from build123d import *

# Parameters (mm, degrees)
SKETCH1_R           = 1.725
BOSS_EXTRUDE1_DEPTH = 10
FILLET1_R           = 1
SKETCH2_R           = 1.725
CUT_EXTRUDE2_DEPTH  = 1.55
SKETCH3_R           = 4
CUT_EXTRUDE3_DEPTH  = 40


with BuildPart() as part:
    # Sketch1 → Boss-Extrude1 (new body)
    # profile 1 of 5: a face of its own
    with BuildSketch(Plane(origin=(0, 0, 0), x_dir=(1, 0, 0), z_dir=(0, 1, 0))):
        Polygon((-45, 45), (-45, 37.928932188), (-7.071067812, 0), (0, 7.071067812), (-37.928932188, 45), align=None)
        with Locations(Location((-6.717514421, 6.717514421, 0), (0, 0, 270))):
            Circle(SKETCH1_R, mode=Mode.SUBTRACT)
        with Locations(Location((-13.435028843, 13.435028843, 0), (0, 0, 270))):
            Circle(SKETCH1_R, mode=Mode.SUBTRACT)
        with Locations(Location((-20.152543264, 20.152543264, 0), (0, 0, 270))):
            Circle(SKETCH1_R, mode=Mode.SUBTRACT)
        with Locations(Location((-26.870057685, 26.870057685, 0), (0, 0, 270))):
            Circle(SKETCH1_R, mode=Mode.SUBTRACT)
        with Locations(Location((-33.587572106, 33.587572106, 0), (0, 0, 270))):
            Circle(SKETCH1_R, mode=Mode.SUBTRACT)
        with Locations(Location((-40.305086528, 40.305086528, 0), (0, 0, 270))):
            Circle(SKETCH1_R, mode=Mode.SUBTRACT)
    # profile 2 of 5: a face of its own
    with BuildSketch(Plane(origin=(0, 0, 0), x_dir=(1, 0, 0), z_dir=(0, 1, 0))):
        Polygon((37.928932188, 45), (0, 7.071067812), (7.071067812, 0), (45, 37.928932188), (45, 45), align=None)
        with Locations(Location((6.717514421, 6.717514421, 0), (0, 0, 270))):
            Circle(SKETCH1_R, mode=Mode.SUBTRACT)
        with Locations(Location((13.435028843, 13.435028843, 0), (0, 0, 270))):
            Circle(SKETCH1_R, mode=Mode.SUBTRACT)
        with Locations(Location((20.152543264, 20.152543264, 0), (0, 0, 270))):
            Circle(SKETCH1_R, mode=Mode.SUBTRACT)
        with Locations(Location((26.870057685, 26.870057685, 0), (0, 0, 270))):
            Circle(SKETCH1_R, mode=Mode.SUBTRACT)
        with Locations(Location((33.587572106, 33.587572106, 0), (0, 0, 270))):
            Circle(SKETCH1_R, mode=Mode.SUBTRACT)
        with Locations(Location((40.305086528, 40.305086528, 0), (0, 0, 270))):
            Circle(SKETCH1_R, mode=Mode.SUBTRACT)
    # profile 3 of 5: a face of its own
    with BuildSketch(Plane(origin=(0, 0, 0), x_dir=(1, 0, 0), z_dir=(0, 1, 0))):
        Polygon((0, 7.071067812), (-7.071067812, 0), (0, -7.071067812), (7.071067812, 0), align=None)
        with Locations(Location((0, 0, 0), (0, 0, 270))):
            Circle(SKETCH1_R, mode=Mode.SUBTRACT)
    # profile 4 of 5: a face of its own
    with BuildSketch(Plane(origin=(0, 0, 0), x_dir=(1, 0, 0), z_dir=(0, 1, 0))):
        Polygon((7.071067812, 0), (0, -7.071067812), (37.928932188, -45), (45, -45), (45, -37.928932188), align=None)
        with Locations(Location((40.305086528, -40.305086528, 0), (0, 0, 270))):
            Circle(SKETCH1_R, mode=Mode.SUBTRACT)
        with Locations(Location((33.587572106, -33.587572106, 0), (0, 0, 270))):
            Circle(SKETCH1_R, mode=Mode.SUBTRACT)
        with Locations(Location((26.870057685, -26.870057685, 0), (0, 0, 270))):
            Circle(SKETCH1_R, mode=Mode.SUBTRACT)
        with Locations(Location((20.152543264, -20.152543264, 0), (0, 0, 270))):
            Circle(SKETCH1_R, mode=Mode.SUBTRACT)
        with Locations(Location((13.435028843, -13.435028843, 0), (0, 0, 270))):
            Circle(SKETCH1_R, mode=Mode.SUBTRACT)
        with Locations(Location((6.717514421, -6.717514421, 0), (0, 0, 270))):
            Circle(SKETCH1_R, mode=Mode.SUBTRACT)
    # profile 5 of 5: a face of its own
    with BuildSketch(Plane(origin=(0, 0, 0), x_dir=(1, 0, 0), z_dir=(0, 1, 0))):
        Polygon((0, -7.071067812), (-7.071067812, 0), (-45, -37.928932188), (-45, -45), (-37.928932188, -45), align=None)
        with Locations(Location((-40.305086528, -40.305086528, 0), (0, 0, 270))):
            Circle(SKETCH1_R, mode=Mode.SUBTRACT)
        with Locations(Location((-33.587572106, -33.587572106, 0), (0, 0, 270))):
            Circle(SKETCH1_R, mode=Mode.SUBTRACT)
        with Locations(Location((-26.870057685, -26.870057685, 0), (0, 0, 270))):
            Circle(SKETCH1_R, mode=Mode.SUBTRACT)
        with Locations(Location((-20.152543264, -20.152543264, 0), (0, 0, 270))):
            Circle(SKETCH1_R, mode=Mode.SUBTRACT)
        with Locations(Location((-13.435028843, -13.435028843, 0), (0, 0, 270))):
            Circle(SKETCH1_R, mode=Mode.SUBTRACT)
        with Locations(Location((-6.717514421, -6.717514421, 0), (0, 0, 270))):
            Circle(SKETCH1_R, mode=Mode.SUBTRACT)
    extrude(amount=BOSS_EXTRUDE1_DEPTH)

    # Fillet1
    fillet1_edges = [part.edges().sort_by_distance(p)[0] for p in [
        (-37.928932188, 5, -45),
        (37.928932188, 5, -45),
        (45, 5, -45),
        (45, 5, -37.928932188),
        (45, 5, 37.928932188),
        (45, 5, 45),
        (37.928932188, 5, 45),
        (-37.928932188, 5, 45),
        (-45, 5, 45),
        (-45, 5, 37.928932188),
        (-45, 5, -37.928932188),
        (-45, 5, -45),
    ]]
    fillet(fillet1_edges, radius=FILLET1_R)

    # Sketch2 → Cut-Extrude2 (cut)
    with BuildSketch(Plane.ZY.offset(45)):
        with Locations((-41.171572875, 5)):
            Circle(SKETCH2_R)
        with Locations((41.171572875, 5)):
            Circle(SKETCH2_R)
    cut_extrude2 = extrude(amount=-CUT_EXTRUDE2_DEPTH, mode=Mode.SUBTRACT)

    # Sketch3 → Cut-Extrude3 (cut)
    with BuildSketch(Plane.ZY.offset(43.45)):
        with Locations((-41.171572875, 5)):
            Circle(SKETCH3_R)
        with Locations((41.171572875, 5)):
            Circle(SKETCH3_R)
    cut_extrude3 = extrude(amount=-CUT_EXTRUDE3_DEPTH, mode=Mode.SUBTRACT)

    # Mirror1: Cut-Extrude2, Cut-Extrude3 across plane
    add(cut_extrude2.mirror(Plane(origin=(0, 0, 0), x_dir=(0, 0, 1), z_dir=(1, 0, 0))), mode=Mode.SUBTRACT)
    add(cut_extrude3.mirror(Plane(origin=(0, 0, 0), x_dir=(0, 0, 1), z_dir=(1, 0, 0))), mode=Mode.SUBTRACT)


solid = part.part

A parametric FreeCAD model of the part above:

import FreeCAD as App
import Part
import Sketcher
from FreeCAD import Vector
Q = App.Units.Quantity


def edges_at(feature, points):
    """Names of the edges that pass closest to the given points."""
    edges = feature.Shape.Edges
    near = lambda p: min(range(len(edges)), key=lambda i: edges[i].distToShape(Part.Vertex(*p))[0])
    return sorted({f"Edge{near(p) + 1}" for p in points})

doc = App.newDocument("Part")
body = doc.addObject("PartDesign::Body", "Body")

# Sketch on XZ plane
sketch1 = doc.addObject("Sketcher::SketchObject", "Sketch")
body.addObject(sketch1)
sketch1.AttachmentSupport = (doc.XZ_Plane, [""])
sketch1.MapMode = "FlatFace"
sketch1.addGeometry(Part.LineSegment(Vector(-45, -45, 0), Vector(-45, -37.9, 0)), False)
sketch1.addGeometry(Part.LineSegment(Vector(-45, -37.9, 0), Vector(-7.1, 0, 0)), False)
sketch1.addGeometry(Part.LineSegment(Vector(-7.1, 0, 0), Vector(-45, 37.9, 0)), False)
sketch1.addGeometry(Part.LineSegment(Vector(-45, 37.9, 0), Vector(-45, 45, 0)), False)
sketch1.addGeometry(Part.LineSegment(Vector(-45, 45, 0), Vector(-37.9, 45, 0)), False)
sketch1.addGeometry(Part.LineSegment(Vector(-37.9, 45, 0), Vector(0, 7.1, 0)), False)
sketch1.addGeometry(Part.LineSegment(Vector(0, 7.1, 0), Vector(37.9, 45, 0)), False)
sketch1.addGeometry(Part.LineSegment(Vector(37.9, 45, 0), Vector(45, 45, 0)), False)
sketch1.addGeometry(Part.LineSegment(Vector(45, 45, 0), Vector(45, 37.9, 0)), False)
sketch1.addGeometry(Part.LineSegment(Vector(45, 37.9, 0), Vector(7.1, 0, 0)), False)
sketch1.addGeometry(Part.LineSegment(Vector(7.1, 0, 0), Vector(45, -37.9, 0)), False)
sketch1.addGeometry(Part.LineSegment(Vector(45, -37.9, 0), Vector(45, -45, 0)), False)
sketch1.addGeometry(Part.LineSegment(Vector(45, -45, 0), Vector(37.9, -45, 0)), False)
sketch1.addGeometry(Part.LineSegment(Vector(37.9, -45, 0), Vector(0, -7.1, 0)), False)
sketch1.addGeometry(Part.LineSegment(Vector(0, -7.1, 0), Vector(-37.9, -45, 0)), False)
sketch1.addGeometry(Part.LineSegment(Vector(-37.9, -45, 0), Vector(-45, -45, 0)), False)
sketch1.addGeometry(Part.Circle(Vector(-6.7, -6.7, 0), Vector(0, 0, 1), 1.7), False)
sketch1.addGeometry(Part.Circle(Vector(-13.4, -13.4, 0), Vector(0, 0, 1), 1.7), False)
sketch1.addGeometry(Part.Circle(Vector(-20.2, -20.2, 0), Vector(0, 0, 1), 1.7), False)
sketch1.addGeometry(Part.Circle(Vector(-26.9, -26.9, 0), Vector(0, 0, 1), 1.7), False)
sketch1.addGeometry(Part.Circle(Vector(-33.6, -33.6, 0), Vector(0, 0, 1), 1.7), False)
sketch1.addGeometry(Part.Circle(Vector(-40.3, -40.3, 0), Vector(0, 0, 1), 1.7), False)
sketch1.addGeometry(Part.Circle(Vector(0, 0, 0), Vector(0, 0, 1), 1.7), False)
sketch1.addGeometry(Part.Circle(Vector(40.3, -40.3, 0), Vector(0, 0, 1), 1.7), False)
sketch1.addGeometry(Part.Circle(Vector(6.7, -6.7, 0), Vector(0, 0, 1), 1.7), False)
sketch1.addGeometry(Part.Circle(Vector(13.4, -13.4, 0), Vector(0, 0, 1), 1.7), False)
sketch1.addGeometry(Part.Circle(Vector(20.2, -20.2, 0), Vector(0, 0, 1), 1.7), False)
sketch1.addGeometry(Part.Circle(Vector(26.9, -26.9, 0), Vector(0, 0, 1), 1.7), False)
sketch1.addGeometry(Part.Circle(Vector(33.6, -33.6, 0), Vector(0, 0, 1), 1.7), False)
sketch1.addGeometry(Part.Circle(Vector(-6.7, 6.7, 0), Vector(0, 0, 1), 1.7), False)
sketch1.addGeometry(Part.Circle(Vector(-40.3, 40.3, 0), Vector(0, 0, 1), 1.7), False)
sketch1.addGeometry(Part.Circle(Vector(-33.6, 33.6, 0), Vector(0, 0, 1), 1.7), False)
sketch1.addGeometry(Part.Circle(Vector(-26.9, 26.9, 0), Vector(0, 0, 1), 1.7), False)
sketch1.addGeometry(Part.Circle(Vector(-20.2, 20.2, 0), Vector(0, 0, 1), 1.7), False)
sketch1.addGeometry(Part.Circle(Vector(-13.4, 13.4, 0), Vector(0, 0, 1), 1.7), False)
sketch1.addGeometry(Part.Circle(Vector(6.7, 6.7, 0), Vector(0, 0, 1), 1.7), False)
sketch1.addGeometry(Part.Circle(Vector(40.3, 40.3, 0), Vector(0, 0, 1), 1.7), False)
sketch1.addGeometry(Part.Circle(Vector(33.6, 33.6, 0), Vector(0, 0, 1), 1.7), False)
sketch1.addGeometry(Part.Circle(Vector(26.9, 26.9, 0), Vector(0, 0, 1), 1.7), False)
sketch1.addGeometry(Part.Circle(Vector(20.2, 20.2, 0), Vector(0, 0, 1), 1.7), False)
sketch1.addGeometry(Part.Circle(Vector(13.4, 13.4, 0), Vector(0, 0, 1), 1.7), False)
sketch1.addConstraint(Sketcher.Constraint("Coincident", 0, 2, 1, 1))
sketch1.addConstraint(Sketcher.Constraint("Coincident", 1, 2, 2, 1))
sketch1.addConstraint(Sketcher.Constraint("Coincident", 2, 2, 3, 1))
sketch1.addConstraint(Sketcher.Constraint("Coincident", 3, 2, 4, 1))
sketch1.addConstraint(Sketcher.Constraint("Coincident", 4, 2, 5, 1))
sketch1.addConstraint(Sketcher.Constraint("Coincident", 5, 2, 6, 1))
sketch1.addConstraint(Sketcher.Constraint("Coincident", 6, 2, 7, 1))
sketch1.addConstraint(Sketcher.Constraint("Coincident", 7, 2, 8, 1))
sketch1.addConstraint(Sketcher.Constraint("Coincident", 8, 2, 9, 1))
sketch1.addConstraint(Sketcher.Constraint("Coincident", 9, 2, 10, 1))
sketch1.addConstraint(Sketcher.Constraint("Coincident", 10, 2, 11, 1))
sketch1.addConstraint(Sketcher.Constraint("Coincident", 11, 2, 12, 1))
sketch1.addConstraint(Sketcher.Constraint("Coincident", 12, 2, 13, 1))
sketch1.addConstraint(Sketcher.Constraint("Coincident", 13, 2, 14, 1))
sketch1.addConstraint(Sketcher.Constraint("Coincident", 14, 2, 15, 1))
sketch1.addConstraint(Sketcher.Constraint("Coincident", 15, 2, 0, 1))
sketch1.addConstraint(Sketcher.Constraint("Vertical", 0))
sketch1.addConstraint(Sketcher.Constraint("Vertical", 3))
sketch1.addConstraint(Sketcher.Constraint("Horizontal", 4))
sketch1.addConstraint(Sketcher.Constraint("Horizontal", 7))
sketch1.addConstraint(Sketcher.Constraint("Vertical", 8))
sketch1.addConstraint(Sketcher.Constraint("Vertical", 11))
sketch1.addConstraint(Sketcher.Constraint("Horizontal", 12))
sketch1.addConstraint(Sketcher.Constraint("Horizontal", 15))
sketch1.addConstraint(Sketcher.Constraint("Coincident", 22, 3, -1, 1))
sketch1.addConstraint(Sketcher.Constraint("Equal", 16, 17))
sketch1.addConstraint(Sketcher.Constraint("Equal", 17, 18))
sketch1.addConstraint(Sketcher.Constraint("Equal", 18, 19))
sketch1.addConstraint(Sketcher.Constraint("Equal", 19, 20))
sketch1.addConstraint(Sketcher.Constraint("Equal", 20, 21))
sketch1.addConstraint(Sketcher.Constraint("Equal", 21, 22))
sketch1.addConstraint(Sketcher.Constraint("Equal", 22, 23))
sketch1.addConstraint(Sketcher.Constraint("Equal", 23, 24))
sketch1.addConstraint(Sketcher.Constraint("Equal", 24, 25))
sketch1.addConstraint(Sketcher.Constraint("Equal", 25, 26))
sketch1.addConstraint(Sketcher.Constraint("Equal", 26, 27))
sketch1.addConstraint(Sketcher.Constraint("Equal", 27, 28))
sketch1.addConstraint(Sketcher.Constraint("Equal", 28, 29))
sketch1.addConstraint(Sketcher.Constraint("Equal", 29, 30))
sketch1.addConstraint(Sketcher.Constraint("Equal", 30, 31))
sketch1.addConstraint(Sketcher.Constraint("Equal", 31, 32))
sketch1.addConstraint(Sketcher.Constraint("Equal", 32, 33))
sketch1.addConstraint(Sketcher.Constraint("Equal", 33, 34))
sketch1.addConstraint(Sketcher.Constraint("Equal", 34, 35))
sketch1.addConstraint(Sketcher.Constraint("Equal", 35, 36))
sketch1.addConstraint(Sketcher.Constraint("Equal", 36, 37))
sketch1.addConstraint(Sketcher.Constraint("Equal", 37, 38))
sketch1.addConstraint(Sketcher.Constraint("Equal", 38, 39))
sketch1.addConstraint(Sketcher.Constraint("Equal", 39, 40))
sketch1.addConstraint(Sketcher.Constraint("Symmetric", 24, 3, 29, 3, -1, 1))
sketch1.addConstraint(Sketcher.Constraint("Symmetric", 23, 3, 30, 3, -1, 1))
sketch1.addConstraint(Sketcher.Constraint("Symmetric", 28, 3, 31, 3, -1, 1))
sketch1.addConstraint(Sketcher.Constraint("Symmetric", 27, 3, 32, 3, -1, 1))
sketch1.addConstraint(Sketcher.Constraint("Symmetric", 26, 3, 33, 3, -1, 1))
sketch1.addConstraint(Sketcher.Constraint("Symmetric", 25, 3, 34, 3, -1, 1))
sketch1.addConstraint(Sketcher.Constraint("Symmetric", 16, 3, 35, 3, -1, 1))
sketch1.addConstraint(Sketcher.Constraint("Symmetric", 21, 3, 36, 3, -1, 1))
sketch1.addConstraint(Sketcher.Constraint("Symmetric", 20, 3, 37, 3, -1, 1))
sketch1.addConstraint(Sketcher.Constraint("Symmetric", 19, 3, 38, 3, -1, 1))
sketch1.addConstraint(Sketcher.Constraint("Symmetric", 18, 3, 39, 3, -1, 1))
sketch1.addConstraint(Sketcher.Constraint("Symmetric", 17, 3, 40, 3, -1, 1))
sketch1.addConstraint(Sketcher.Constraint("Symmetric", 0, 2, 8, 2, -1, 1))
sketch1.addConstraint(Sketcher.Constraint("Symmetric", 1, 2, 9, 2, -1, 1))
sketch1.addConstraint(Sketcher.Constraint("Symmetric", 2, 2, 10, 2, -1, 1))
sketch1.addConstraint(Sketcher.Constraint("Symmetric", 4, 2, 12, 2, -1, 1))
sketch1.addConstraint(Sketcher.Constraint("Symmetric", 5, 2, 13, 2, -1, 1))
sketch1.addConstraint(Sketcher.Constraint("Symmetric", 6, 2, 14, 2, -1, 1))
sketch1.addConstraint(Sketcher.Constraint("Symmetric", 21, 3, 23, 3, -2))
sketch1.addConstraint(Sketcher.Constraint("Symmetric", 16, 3, 24, 3, -2))
sketch1.addConstraint(Sketcher.Constraint("Symmetric", 17, 3, 25, 3, -2))
sketch1.addConstraint(Sketcher.Constraint("Symmetric", 18, 3, 26, 3, -2))
sketch1.addConstraint(Sketcher.Constraint("Symmetric", 19, 3, 27, 3, -2))
sketch1.addConstraint(Sketcher.Constraint("Symmetric", 20, 3, 28, 3, -2))
sketch1.addConstraint(Sketcher.Constraint("Symmetric", 4, 2, 6, 2, -2))
sketch1.addConstraint(Sketcher.Constraint("Symmetric", 2, 2, 8, 2, -2))
sketch1.addConstraint(Sketcher.Constraint("PointOnObject", 1, 2, -1))
sketch1.addConstraint(Sketcher.Constraint("PointOnObject", 5, 2, -2))
sketch1.addConstraint(Sketcher.Constraint("Perpendicular", 1, 2))
sketch1.addConstraint(Sketcher.Constraint("Parallel", 2, 5))
sketch1.addConstraint(Sketcher.Constraint("Equal", 15, 0))
sketch1.addConstraint(Sketcher.Constraint("Equal", 2, 5))
sketch1.addConstraint(Sketcher.Constraint("Diameter", 16, Q("3.45 mm")))
sketch1.addConstraint(Sketcher.Constraint("DistanceX", 0, 2, -1, 1, Q("45 mm")))
sketch1.addConstraint(Sketcher.Constraint("DistanceX", 16, 3, 23, 3, Q("47.022601 mm")))
sketch1.addConstraint(Sketcher.Constraint("DistanceY", 16, 3, 30, 3, Q("47.022601 mm")))
sketch1.addConstraint(Sketcher.Constraint("DistanceY", 17, 3, 31, 3, Q("47.022601 mm")))
sketch1.addConstraint(Sketcher.Constraint("Distance", 1, Q("53.63961 mm")))
sketch1.addConstraint(Sketcher.Constraint("DistanceX", 17, 3, -1, 1, Q("13.435029 mm")))
sketch1.addConstraint(Sketcher.Constraint("DistanceY", 17, 3, -1, 1, Q("13.435029 mm")))
sketch1.addConstraint(Sketcher.Constraint("DistanceX", 18, 3, 16, 3, Q("13.435029 mm")))
sketch1.addConstraint(Sketcher.Constraint("DistanceY", 18, 3, 16, 3, Q("13.435029 mm")))
sketch1.addConstraint(Sketcher.Constraint("DistanceX", 19, 3, 17, 3, Q("13.435029 mm")))
sketch1.addConstraint(Sketcher.Constraint("DistanceY", 19, 3, 17, 3, Q("13.435029 mm")))
sketch1.addConstraint(Sketcher.Constraint("DistanceX", 20, 3, 18, 3, Q("13.435029 mm")))
sketch1.addConstraint(Sketcher.Constraint("DistanceY", 20, 3, 18, 3, Q("13.435029 mm")))
sketch1.addConstraint(Sketcher.Constraint("DistanceX", 21, 3, 19, 3, Q("13.435029 mm")))
pad1 = doc.addObject("PartDesign::Pad", "Pad")
body.addObject(pad1)
pad1.Profile = sketch1
pad1.Length = 10
pad1.Reversed = True
doc.recompute()

fillet = doc.addObject("PartDesign::Fillet", "Fillet")
body.addObject(fillet)
fillet.Base = (pad1, edges_at(pad1, [
    (-37.929, 5, -45),
    (37.929, 5, -45),
    (45, 5, -45),
    (45, 5, -37.929),
    (45, 5, 37.929),
    (45, 5, 45),
    (37.929, 5, 45),
    (-37.929, 5, 45),
    (-45, 5, 45),
    (-45, 5, 37.929),
    (-45, 5, -37.929),
    (-45, 5, -45),
]))
fillet.Radius = 1

# Sketch on YZ plane
sketch2 = doc.addObject("Sketcher::SketchObject", "Sketch001")
body.addObject(sketch2)
sketch2.AttachmentSupport = (doc.YZ_Plane, [""])
sketch2.MapMode = "FlatFace"
sketch2.AttachmentOffset = App.Placement(Vector(0, 0, -45), App.Rotation())
sketch2.addGeometry(Part.Circle(Vector(5, -41.2, 0), Vector(0, 0, 1), 1.7), False)
sketch2.addGeometry(Part.Circle(Vector(5, 41.2, 0), Vector(0, 0, 1), 1.7), False)
sketch2.addConstraint(Sketcher.Constraint("Equal", 0, 1))
sketch2.addConstraint(Sketcher.Constraint("Symmetric", 0, 3, 1, 3, -1))
sketch2.addConstraint(Sketcher.Constraint("Diameter", 0, Q("3.45 mm")))
sketch2.addConstraint(Sketcher.Constraint("DistanceX", -1, 1, 0, 3, Q("5 mm")))
sketch2.addConstraint(Sketcher.Constraint("DistanceY", 0, 3, -1, 1, Q("41.171573 mm")))
pocket1 = doc.addObject("PartDesign::Pocket", "Pocket")
body.addObject(pocket1)
pocket1.Profile = sketch2
pocket1.Length = 1.55
pocket1.Reversed = True

# Sketch on YZ plane
sketch3 = doc.addObject("Sketcher::SketchObject", "Sketch002")
body.addObject(sketch3)
sketch3.AttachmentSupport = (doc.YZ_Plane, [""])
sketch3.MapMode = "FlatFace"
sketch3.AttachmentOffset = App.Placement(Vector(0, 0, -43.45), App.Rotation())
sketch3.addGeometry(Part.Circle(Vector(5, -41.2, 0), Vector(0, 0, 1), 4), False)
sketch3.addGeometry(Part.Circle(Vector(5, 41.2, 0), Vector(0, 0, 1), 4), False)
sketch3.addConstraint(Sketcher.Constraint("Equal", 0, 1))
sketch3.addConstraint(Sketcher.Constraint("Symmetric", 0, 3, 1, 3, -1))
sketch3.addConstraint(Sketcher.Constraint("Diameter", 0, Q("8 mm")))
sketch3.addConstraint(Sketcher.Constraint("DistanceX", -1, 1, 0, 3, Q("5 mm")))
sketch3.addConstraint(Sketcher.Constraint("DistanceY", 0, 3, -1, 1, Q("41.171573 mm")))
pocket2 = doc.addObject("PartDesign::Pocket", "Pocket001")
body.addObject(pocket2)
pocket2.Profile = sketch3
pocket2.Length = 40
pocket2.Reversed = True
doc.recompute()

mirrored = doc.addObject("PartDesign::Mirrored", "Mirrored")
body.addObject(mirrored)
mirrored.Originals = [pocket1, pocket2]
mirrored.MirrorPlane = (doc.YZ_Plane, [""])
body.Tip = mirrored

doc.recompute()
